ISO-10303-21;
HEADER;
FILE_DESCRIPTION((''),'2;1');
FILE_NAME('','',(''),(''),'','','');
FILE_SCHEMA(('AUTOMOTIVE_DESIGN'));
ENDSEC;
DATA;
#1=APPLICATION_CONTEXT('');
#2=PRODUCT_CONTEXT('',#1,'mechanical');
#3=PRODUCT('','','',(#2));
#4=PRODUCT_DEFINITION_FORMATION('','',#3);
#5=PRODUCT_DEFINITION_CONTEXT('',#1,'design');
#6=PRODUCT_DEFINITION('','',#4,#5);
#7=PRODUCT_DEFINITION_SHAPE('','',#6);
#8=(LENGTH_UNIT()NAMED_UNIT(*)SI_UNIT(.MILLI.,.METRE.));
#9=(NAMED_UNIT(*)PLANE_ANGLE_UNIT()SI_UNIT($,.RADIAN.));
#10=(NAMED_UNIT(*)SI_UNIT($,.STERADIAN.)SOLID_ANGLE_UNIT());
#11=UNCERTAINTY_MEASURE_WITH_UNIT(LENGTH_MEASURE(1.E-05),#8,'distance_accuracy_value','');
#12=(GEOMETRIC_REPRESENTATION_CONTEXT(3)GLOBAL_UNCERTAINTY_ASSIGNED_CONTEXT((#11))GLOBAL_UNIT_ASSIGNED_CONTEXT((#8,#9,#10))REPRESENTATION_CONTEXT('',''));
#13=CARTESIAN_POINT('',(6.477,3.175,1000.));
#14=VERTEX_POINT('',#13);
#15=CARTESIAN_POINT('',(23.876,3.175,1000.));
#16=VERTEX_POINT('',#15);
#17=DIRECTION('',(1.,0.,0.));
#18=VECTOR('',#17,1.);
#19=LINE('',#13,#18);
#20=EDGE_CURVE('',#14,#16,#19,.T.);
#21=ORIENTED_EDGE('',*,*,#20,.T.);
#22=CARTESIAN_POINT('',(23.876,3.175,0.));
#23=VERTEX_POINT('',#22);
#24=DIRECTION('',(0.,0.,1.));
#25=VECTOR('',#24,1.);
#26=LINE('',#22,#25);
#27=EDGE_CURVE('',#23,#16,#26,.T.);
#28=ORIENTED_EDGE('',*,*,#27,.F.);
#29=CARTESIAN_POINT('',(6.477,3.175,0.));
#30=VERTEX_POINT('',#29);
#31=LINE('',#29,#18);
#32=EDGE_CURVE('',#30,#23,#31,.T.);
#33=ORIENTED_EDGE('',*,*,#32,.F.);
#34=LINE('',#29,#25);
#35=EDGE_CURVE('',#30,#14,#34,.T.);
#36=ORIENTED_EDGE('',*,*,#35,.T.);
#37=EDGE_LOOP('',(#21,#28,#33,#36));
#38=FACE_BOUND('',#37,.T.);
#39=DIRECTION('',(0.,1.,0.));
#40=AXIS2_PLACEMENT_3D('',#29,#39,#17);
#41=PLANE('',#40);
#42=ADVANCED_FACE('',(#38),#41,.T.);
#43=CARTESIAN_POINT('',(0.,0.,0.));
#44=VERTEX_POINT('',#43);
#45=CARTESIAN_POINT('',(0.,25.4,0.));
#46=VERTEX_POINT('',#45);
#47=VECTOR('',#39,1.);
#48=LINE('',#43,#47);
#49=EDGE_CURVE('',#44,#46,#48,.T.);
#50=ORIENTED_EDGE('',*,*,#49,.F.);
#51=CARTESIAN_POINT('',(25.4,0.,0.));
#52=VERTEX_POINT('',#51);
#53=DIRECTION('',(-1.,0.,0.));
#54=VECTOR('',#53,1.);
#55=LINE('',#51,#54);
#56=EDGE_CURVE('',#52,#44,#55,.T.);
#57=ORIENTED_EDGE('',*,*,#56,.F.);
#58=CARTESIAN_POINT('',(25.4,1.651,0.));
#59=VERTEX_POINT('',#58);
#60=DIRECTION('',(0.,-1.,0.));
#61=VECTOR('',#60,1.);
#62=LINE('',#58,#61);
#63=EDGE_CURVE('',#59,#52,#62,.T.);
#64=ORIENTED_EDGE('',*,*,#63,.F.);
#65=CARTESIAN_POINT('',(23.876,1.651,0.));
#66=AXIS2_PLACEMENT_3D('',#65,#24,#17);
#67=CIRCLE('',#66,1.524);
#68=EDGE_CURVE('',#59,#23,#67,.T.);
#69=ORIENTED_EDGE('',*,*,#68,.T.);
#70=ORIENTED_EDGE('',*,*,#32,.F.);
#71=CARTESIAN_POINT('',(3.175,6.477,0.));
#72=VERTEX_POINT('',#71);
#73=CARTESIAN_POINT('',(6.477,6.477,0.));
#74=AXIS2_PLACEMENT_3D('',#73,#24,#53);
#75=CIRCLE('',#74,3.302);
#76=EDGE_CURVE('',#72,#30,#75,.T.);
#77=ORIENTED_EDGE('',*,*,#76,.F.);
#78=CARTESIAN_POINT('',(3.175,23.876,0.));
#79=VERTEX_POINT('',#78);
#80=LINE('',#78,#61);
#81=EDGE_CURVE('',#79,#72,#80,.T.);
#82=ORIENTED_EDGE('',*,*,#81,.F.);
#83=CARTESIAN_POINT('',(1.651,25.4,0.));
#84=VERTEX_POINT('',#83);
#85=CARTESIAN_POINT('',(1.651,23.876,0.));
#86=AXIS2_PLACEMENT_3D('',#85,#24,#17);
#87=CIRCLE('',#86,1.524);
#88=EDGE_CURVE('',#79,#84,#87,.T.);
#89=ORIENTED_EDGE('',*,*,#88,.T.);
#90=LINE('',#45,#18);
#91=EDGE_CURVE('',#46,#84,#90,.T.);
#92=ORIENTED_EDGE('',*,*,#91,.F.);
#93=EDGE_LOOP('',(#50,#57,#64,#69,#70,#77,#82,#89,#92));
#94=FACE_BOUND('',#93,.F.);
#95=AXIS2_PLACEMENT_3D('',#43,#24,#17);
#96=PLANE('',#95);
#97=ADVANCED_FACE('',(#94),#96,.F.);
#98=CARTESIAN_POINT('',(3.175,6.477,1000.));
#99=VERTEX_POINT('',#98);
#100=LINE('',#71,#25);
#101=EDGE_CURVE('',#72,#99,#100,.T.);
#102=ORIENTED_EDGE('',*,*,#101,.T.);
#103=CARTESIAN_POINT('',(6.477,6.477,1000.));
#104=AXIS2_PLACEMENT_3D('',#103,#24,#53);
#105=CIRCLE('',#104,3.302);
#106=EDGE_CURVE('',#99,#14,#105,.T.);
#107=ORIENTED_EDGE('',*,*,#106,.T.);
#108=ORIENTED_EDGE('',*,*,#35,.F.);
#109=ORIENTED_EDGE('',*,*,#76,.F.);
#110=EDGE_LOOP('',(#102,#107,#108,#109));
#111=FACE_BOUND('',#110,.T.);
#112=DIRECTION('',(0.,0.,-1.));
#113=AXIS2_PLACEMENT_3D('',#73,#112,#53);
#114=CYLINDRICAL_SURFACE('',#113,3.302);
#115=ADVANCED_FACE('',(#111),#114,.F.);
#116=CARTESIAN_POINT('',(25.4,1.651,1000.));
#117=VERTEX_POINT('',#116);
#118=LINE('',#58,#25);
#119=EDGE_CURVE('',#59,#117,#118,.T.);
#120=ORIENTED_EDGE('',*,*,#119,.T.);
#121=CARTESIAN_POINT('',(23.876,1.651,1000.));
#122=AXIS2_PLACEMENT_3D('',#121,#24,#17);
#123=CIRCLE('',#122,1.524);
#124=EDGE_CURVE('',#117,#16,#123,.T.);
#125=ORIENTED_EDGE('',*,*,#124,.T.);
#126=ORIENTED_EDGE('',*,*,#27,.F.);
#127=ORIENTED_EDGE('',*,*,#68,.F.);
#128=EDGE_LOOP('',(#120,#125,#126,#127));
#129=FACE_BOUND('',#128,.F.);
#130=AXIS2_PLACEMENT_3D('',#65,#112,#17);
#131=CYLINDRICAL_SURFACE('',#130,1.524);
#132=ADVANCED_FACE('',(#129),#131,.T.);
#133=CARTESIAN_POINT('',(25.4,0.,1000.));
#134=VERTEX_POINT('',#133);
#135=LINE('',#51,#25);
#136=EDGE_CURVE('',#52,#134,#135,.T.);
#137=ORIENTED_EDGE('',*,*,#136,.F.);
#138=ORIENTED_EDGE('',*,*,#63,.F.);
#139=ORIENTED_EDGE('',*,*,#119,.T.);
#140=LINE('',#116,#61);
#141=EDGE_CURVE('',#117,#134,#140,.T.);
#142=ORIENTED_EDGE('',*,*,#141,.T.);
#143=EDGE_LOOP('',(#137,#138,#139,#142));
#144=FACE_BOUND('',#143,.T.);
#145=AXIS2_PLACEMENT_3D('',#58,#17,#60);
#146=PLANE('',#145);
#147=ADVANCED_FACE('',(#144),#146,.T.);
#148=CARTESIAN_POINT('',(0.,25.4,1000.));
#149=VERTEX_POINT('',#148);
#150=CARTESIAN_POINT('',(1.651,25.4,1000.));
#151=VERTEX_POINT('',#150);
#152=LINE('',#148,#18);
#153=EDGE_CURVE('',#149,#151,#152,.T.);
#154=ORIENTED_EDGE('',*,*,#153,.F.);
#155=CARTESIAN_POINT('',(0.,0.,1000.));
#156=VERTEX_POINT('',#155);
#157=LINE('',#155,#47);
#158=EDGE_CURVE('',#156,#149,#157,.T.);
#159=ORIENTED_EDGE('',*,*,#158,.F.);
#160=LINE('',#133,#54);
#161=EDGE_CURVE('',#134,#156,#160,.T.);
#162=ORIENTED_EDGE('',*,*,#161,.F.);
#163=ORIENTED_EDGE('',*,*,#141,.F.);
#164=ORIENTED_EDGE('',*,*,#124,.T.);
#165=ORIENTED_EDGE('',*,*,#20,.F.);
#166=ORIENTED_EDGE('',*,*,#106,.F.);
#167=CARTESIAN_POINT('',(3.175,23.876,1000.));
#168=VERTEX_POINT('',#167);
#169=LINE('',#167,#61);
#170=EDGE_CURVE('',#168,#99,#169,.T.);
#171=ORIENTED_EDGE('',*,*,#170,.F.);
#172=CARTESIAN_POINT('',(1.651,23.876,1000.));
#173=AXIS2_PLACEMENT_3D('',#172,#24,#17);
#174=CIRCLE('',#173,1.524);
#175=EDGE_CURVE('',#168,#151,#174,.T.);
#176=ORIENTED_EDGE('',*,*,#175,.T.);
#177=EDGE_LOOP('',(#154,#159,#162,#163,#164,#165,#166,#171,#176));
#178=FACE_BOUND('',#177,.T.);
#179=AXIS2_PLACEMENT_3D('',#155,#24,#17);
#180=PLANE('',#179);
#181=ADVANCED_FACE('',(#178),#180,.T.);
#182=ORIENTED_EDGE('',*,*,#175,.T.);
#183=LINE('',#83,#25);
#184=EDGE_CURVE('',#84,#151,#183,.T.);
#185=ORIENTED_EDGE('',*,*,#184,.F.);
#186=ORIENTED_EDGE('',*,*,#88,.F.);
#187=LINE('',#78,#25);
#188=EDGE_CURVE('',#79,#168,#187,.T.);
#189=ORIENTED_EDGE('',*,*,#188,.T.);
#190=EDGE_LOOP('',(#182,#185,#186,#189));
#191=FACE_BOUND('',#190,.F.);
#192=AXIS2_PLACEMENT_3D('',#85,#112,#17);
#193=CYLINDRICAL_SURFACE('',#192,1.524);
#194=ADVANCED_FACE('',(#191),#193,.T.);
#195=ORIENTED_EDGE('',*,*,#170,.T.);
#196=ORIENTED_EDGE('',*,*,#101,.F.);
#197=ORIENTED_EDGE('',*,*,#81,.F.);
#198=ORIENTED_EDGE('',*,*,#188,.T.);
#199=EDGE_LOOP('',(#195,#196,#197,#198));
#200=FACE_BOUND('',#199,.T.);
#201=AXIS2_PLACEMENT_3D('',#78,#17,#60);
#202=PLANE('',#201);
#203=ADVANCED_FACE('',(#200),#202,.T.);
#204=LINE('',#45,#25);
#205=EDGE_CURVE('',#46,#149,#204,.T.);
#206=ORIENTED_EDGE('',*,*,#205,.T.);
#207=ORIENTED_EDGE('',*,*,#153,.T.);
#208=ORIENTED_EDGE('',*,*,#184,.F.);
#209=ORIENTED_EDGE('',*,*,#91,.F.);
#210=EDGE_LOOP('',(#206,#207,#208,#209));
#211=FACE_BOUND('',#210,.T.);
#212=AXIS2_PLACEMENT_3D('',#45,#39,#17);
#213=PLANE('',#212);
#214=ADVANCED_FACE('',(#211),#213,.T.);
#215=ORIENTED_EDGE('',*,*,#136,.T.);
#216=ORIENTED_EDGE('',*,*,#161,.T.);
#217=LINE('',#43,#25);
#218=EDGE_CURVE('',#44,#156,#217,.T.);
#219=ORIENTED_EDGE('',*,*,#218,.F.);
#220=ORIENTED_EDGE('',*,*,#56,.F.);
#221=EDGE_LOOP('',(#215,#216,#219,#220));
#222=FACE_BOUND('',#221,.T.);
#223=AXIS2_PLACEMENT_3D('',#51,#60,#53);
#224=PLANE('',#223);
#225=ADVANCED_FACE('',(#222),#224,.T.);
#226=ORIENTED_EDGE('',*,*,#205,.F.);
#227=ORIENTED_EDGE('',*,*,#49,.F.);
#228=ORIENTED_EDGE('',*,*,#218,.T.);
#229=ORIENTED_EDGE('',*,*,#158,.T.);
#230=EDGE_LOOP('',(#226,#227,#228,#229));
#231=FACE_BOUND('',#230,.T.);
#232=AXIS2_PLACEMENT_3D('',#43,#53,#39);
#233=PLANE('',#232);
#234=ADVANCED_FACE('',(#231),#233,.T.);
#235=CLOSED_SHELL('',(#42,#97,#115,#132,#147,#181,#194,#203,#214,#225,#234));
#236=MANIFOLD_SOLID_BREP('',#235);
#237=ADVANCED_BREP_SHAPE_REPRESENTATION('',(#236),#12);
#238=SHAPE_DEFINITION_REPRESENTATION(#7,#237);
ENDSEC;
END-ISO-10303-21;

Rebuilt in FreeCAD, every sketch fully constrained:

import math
import FreeCAD as App
import Part
import Sketcher
Q = App.Units.Quantity

doc = App.newDocument("Part")
body = doc.addObject("PartDesign::Body", "Body")

# Sketch on XY plane
sketch1 = body.newObject("Sketcher::SketchObject", "Sketch")
sketch1.AttachmentSupport = (doc.getObject("XY_Plane"), [""])
sketch1.MapMode = "FlatFace"
sketch1.addGeometry(Part.LineSegment(App.Vector(0, 0, 0), App.Vector(25.4, 0, 0)), False)
sketch1.addGeometry(Part.LineSegment(App.Vector(25.4, 0, 0), App.Vector(25.4, 1.7, 0)), False)
sketch1.addGeometry(Part.ArcOfCircle(Part.Circle(App.Vector(23.9, 1.7, 0), App.Vector(0, 0, 1), 1.5), math.radians(0), math.radians(90)), False)
sketch1.addGeometry(Part.LineSegment(App.Vector(23.9, 3.2, 0), App.Vector(6.5, 3.2, 0)), False)
sketch1.addGeometry(Part.ArcOfCircle(Part.Circle(App.Vector(6.5, 6.5, 0), App.Vector(0, 0, 1), 3.3), math.radians(180), math.radians(270)), False)
sketch1.addGeometry(Part.LineSegment(App.Vector(3.2, 6.5, 0), App.Vector(3.2, 23.9, 0)), False)
sketch1.addGeometry(Part.ArcOfCircle(Part.Circle(App.Vector(1.7, 23.9, 0), App.Vector(0, 0, 1), 1.5), math.radians(0), math.radians(90)), False)
sketch1.addGeometry(Part.LineSegment(App.Vector(1.7, 25.4, 0), App.Vector(0, 25.4, 0)), False)
sketch1.addGeometry(Part.LineSegment(App.Vector(0, 25.4, 0), App.Vector(0, 0, 0)), False)
sketch1.addConstraint(Sketcher.Constraint("Coincident", 0, 2, 1, 1))
sketch1.addConstraint(Sketcher.Constraint("Tangent", 1, 2, 2, 1))
sketch1.addConstraint(Sketcher.Constraint("Tangent", 2, 2, 3, 1))
sketch1.addConstraint(Sketcher.Constraint("Tangent", 3, 2, 4, 2))
sketch1.addConstraint(Sketcher.Constraint("Tangent", 4, 1, 5, 1))
sketch1.addConstraint(Sketcher.Constraint("Tangent", 5, 2, 6, 1))
sketch1.addConstraint(Sketcher.Constraint("Tangent", 6, 2, 7, 1))
sketch1.addConstraint(Sketcher.Constraint("Coincident", 7, 2, 8, 1))
sketch1.addConstraint(Sketcher.Constraint("Coincident", 8, 2, 0, 1))
sketch1.addConstraint(Sketcher.Constraint("Horizontal", 0))
sketch1.addConstraint(Sketcher.Constraint("Vertical", 1))
sketch1.addConstraint(Sketcher.Constraint("Horizontal", 3))
sketch1.addConstraint(Sketcher.Constraint("Vertical", 5))
sketch1.addConstraint(Sketcher.Constraint("Horizontal", 7))
sketch1.addConstraint(Sketcher.Constraint("Vertical", 8))
sketch1.addConstraint(Sketcher.Constraint("Coincident", 8, 2, -1, 1))
sketch1.addConstraint(Sketcher.Constraint("Equal", 2, 6))
sketch1.addConstraint(Sketcher.Constraint("Equal", 7, 1))
sketch1.addConstraint(Sketcher.Constraint("Equal", 3, 5))
sketch1.addConstraint(Sketcher.Constraint("DistanceX", 0, 1, 0, 2, Q("1 in")))
sketch1.addConstraint(Sketcher.Constraint("Radius", 2, Q("0.06 in")))
sketch1.addConstraint(Sketcher.Constraint("Radius", 4, Q("0.13 in")))
sketch1.addConstraint(Sketcher.Constraint("DistanceY", -1, 1, 2, 2, Q("0.125 in")))
pad1 = body.newObject("PartDesign::Pad", "Pad")
pad1.Profile = sketch1
pad1.Length = 1000

doc.recompute()
